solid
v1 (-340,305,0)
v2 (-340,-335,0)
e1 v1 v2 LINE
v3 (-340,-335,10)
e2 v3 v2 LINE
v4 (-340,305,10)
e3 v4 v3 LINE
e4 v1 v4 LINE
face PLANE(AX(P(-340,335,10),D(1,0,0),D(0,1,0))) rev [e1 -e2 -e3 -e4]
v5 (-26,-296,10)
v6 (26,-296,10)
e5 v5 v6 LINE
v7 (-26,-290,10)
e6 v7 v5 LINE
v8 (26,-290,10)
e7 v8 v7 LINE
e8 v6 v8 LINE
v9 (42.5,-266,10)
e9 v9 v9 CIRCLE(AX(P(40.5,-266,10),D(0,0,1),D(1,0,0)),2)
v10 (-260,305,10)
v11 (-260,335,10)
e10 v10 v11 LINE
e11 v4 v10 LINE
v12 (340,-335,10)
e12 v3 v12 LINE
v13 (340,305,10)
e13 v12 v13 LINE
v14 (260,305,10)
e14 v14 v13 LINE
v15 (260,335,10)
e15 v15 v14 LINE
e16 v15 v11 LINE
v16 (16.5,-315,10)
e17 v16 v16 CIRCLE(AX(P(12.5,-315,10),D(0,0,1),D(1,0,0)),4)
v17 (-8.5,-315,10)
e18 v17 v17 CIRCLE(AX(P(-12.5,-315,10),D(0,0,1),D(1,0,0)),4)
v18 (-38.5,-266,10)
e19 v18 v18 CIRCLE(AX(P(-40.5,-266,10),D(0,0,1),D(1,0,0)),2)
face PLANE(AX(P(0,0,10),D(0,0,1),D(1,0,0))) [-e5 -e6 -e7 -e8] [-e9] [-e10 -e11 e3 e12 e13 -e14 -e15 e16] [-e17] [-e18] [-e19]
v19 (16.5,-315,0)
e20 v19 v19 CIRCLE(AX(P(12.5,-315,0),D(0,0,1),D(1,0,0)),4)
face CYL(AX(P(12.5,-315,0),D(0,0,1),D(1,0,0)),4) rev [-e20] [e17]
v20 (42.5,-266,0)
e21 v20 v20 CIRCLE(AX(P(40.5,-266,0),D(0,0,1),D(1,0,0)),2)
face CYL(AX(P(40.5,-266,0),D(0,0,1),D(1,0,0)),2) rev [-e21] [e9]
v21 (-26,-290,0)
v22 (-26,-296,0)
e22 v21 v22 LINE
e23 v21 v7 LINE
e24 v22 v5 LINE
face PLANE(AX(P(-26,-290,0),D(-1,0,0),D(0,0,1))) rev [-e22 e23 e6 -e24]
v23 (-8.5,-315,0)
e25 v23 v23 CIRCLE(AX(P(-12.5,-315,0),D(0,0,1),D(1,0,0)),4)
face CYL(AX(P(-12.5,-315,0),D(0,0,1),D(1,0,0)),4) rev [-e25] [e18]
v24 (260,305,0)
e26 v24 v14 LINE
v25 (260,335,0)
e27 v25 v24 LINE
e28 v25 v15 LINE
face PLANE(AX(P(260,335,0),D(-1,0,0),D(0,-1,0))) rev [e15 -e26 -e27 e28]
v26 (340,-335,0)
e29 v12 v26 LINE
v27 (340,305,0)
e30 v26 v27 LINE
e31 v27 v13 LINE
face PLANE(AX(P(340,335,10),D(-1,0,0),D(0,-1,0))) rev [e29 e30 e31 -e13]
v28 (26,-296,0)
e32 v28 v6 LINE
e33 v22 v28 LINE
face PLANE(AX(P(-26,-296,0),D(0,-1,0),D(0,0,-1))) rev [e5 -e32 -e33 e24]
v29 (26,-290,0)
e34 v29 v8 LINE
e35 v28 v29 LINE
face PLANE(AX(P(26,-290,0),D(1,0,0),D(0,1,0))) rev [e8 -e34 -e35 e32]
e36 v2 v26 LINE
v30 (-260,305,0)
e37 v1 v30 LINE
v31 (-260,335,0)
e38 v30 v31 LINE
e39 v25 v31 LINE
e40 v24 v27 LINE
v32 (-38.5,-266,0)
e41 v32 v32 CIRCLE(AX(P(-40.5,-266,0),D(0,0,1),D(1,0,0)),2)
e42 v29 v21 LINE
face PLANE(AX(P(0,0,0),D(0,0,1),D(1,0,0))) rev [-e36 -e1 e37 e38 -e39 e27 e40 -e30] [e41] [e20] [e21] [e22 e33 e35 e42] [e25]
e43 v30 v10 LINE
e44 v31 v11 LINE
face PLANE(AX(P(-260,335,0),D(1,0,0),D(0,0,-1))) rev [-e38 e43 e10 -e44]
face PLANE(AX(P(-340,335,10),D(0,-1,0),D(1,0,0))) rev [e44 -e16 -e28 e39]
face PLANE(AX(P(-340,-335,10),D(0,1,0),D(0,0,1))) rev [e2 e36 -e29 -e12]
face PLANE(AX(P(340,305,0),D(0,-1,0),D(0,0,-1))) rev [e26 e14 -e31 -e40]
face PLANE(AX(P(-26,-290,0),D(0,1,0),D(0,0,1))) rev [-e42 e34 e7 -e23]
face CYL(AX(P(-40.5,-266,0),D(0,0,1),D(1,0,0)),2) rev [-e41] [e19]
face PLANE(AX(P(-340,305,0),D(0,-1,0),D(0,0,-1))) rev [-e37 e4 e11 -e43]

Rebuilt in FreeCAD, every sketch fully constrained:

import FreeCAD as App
import Part
import Sketcher
from FreeCAD import Vector
Q = App.Units.Quantity

doc = App.newDocument("Part")
body = doc.addObject("PartDesign::Body", "Body")

# Sketch on XY plane
sketch1 = doc.addObject("Sketcher::SketchObject", "Sketch")
body.addObject(sketch1)
sketch1.AttachmentSupport = (doc.XY_Plane, [""])
sketch1.MapMode = "FlatFace"
sketch1.addGeometry([
    Part.LineSegment(Vector(-340, 335, 0), Vector(-340, -335, 0)),
    Part.LineSegment(Vector(-340, -335, 0), Vector(340, -335, 0)),
    Part.LineSegment(Vector(340, -335, 0), Vector(340, 335, 0)),
    Part.LineSegment(Vector(340, 335, 0), Vector(-340, 335, 0)),
], False)
sketch1.addConstraint([
    Sketcher.Constraint("Coincident", 0, 2, 1, 1),
    Sketcher.Constraint("Coincident", 1, 2, 2, 1),
    Sketcher.Constraint("Coincident", 2, 2, 3, 1),
    Sketcher.Constraint("Coincident", 3, 2, 0, 1),
    Sketcher.Constraint("Vertical", 0),
    Sketcher.Constraint("Horizontal", 1),
    Sketcher.Constraint("Vertical", 2),
    Sketcher.Constraint("Horizontal", 3),
    Sketcher.Constraint("Symmetric", 0, 2, 2, 2, -1, 1),
    Sketcher.Constraint("DistanceX", 1, 1, 1, 2, Q("680 mm")),
    Sketcher.Constraint("DistanceY", 0, 2, 0, 1, Q("670 mm")),
])
pad1 = doc.addObject("PartDesign::Pad", "Pad")
body.addObject(pad1)
pad1.Profile = sketch1
pad1.Length = 10

# Sketch on XY plane
sketch2 = doc.addObject("Sketcher::SketchObject", "Sketch001")
body.addObject(sketch2)
sketch2.AttachmentSupport = (doc.XY_Plane, [""])
sketch2.MapMode = "FlatFace"
sketch2.AttachmentOffset = App.Placement(Vector(0, 0, 10), App.Rotation())
sketch2.addGeometry([
    Part.LineSegment(Vector(-340, 335, 0), Vector(-340, 305, 0)),  # 0
    Part.LineSegment(Vector(-340, 305, 0), Vector(-260, 305, 0)),  # 1
    Part.LineSegment(Vector(-260, 305, 0), Vector(-260, 335, 0)),  # 2
    Part.LineSegment(Vector(-260, 335, 0), Vector(-340, 335, 0)),  # 3
    Part.LineSegment(Vector(260, 335, 0), Vector(260, 305, 0)),  # 4
    Part.LineSegment(Vector(260, 305, 0), Vector(340, 305, 0)),  # 5
    Part.LineSegment(Vector(340, 305, 0), Vector(340, 335, 0)),  # 6
    Part.LineSegment(Vector(340, 335, 0), Vector(260, 335, 0)),  # 7
], False)
sketch2.addConstraint([
    Sketcher.Constraint("Coincident", 0, 2, 1, 1),
    Sketcher.Constraint("Coincident", 1, 2, 2, 1),
    Sketcher.Constraint("Coincident", 2, 2, 3, 1),
    Sketcher.Constraint("Coincident", 3, 2, 0, 1),
    Sketcher.Constraint("Coincident", 4, 2, 5, 1),
    Sketcher.Constraint("Coincident", 5, 2, 6, 1),
    Sketcher.Constraint("Coincident", 6, 2, 7, 1),
    Sketcher.Constraint("Coincident", 7, 2, 4, 1),
    Sketcher.Constraint("Vertical", 0),
    Sketcher.Constraint("Horizontal", 1),
    Sketcher.Constraint("Vertical", 2),
    Sketcher.Constraint("Horizontal", 3),
    Sketcher.Constraint("Vertical", 4),
    Sketcher.Constraint("Horizontal", 5),
    Sketcher.Constraint("Vertical", 6),
    Sketcher.Constraint("Horizontal", 7),
    Sketcher.Constraint("Symmetric", 1, 2, 4, 2, -2),
    Sketcher.Constraint("Symmetric", 3, 2, 6, 2, -2),
    Sketcher.Constraint("DistanceX", 1, 1, 1, 2, Q("80 mm")),
    Sketcher.Constraint("DistanceY", 0, 2, 0, 1, Q("30 mm")),
    Sketcher.Constraint("DistanceX", 0, 2, -1, 1, Q("340 mm")),
    Sketcher.Constraint("DistanceY", -1, 1, 0, 2, Q("305 mm")),
])
pocket1 = doc.addObject("PartDesign::Pocket", "Pocket")
body.addObject(pocket1)
pocket1.Profile = sketch2
pocket1.Type = "ThroughAll"

# Sketch on XY plane
sketch3 = doc.addObject("Sketcher::SketchObject", "Sketch002")
body.addObject(sketch3)
sketch3.AttachmentSupport = (doc.XY_Plane, [""])
sketch3.MapMode = "FlatFace"
sketch3.AttachmentOffset = App.Placement(Vector(0, 0, 10), App.Rotation())
sketch3.addGeometry([
    Part.LineSegment(Vector(-26, -290, 0), Vector(-26, -296, 0)),
    Part.LineSegment(Vector(-26, -296, 0), Vector(26, -296, 0)),
    Part.LineSegment(Vector(26, -296, 0), Vector(26, -290, 0)),
    Part.LineSegment(Vector(26, -290, 0), Vector(-26, -290, 0)),
], False)
sketch3.addConstraint([
    Sketcher.Constraint("Coincident", 0, 2, 1, 1),
    Sketcher.Constraint("Coincident", 1, 2, 2, 1),
    Sketcher.Constraint("Coincident", 2, 2, 3, 1),
    Sketcher.Constraint("Coincident", 3, 2, 0, 1),
    Sketcher.Constraint("Vertical", 0),
    Sketcher.Constraint("Horizontal", 1),
    Sketcher.Constraint("Vertical", 2),
    Sketcher.Constraint("Horizontal", 3),
    Sketcher.Constraint("DistanceX", 1, 1, 1, 2, Q("52 mm")),
    Sketcher.Constraint("DistanceY", 0, 2, 0, 1, Q("6 mm")),
    Sketcher.Constraint("DistanceX", 0, 2, -1, 1, Q("26 mm")),
    Sketcher.Constraint("DistanceY", 0, 2, -1, 1, Q("296 mm")),
])
pocket2 = doc.addObject("PartDesign::Pocket", "Pocket001")
body.addObject(pocket2)
pocket2.Profile = sketch3
pocket2.Type = "ThroughAll"

# Sketch on XY plane
sketch4 = doc.addObject("Sketcher::SketchObject", "Sketch003")
body.addObject(sketch4)
sketch4.AttachmentSupport = (doc.XY_Plane, [""])
sketch4.MapMode = "FlatFace"
sketch4.AttachmentOffset = App.Placement(Vector(0, 0, 10), App.Rotation())
sketch4.addGeometry([
    Part.Circle(Vector(-12.5, -315, 0), Vector(0, 0, 1), 4),
    Part.Circle(Vector(12.5, -315, 0), Vector(0, 0, 1), 4),
], False)
sketch4.addConstraint([
    Sketcher.Constraint("Equal", 0, 1),
    Sketcher.Constraint("Symmetric", 0, 3, 1, 3, -2),
    Sketcher.Constraint("Diameter", 0, Q("8 mm")),
    Sketcher.Constraint("DistanceY", 0, 3, -1, 1, Q("315 mm")),
    Sketcher.Constraint("DistanceX", 0, 3, 1, 3, Q("25 mm")),
])
pocket3 = doc.addObject("PartDesign::Pocket", "Pocket002")
body.addObject(pocket3)
pocket3.Profile = sketch4
pocket3.Type = "ThroughAll"

# Sketch on XY plane
sketch5 = doc.addObject("Sketcher::SketchObject", "Sketch004")
body.addObject(sketch5)
sketch5.AttachmentSupport = (doc.XY_Plane, [""])
sketch5.MapMode = "FlatFace"
sketch5.AttachmentOffset = App.Placement(Vector(0, 0, 10), App.Rotation())
sketch5.addGeometry([
    Part.Circle(Vector(-40.5, -266, 0), Vector(0, 0, 1), 2),
    Part.Circle(Vector(40.5, -266, 0), Vector(0, 0, 1), 2),
], False)
sketch5.addConstraint([
    Sketcher.Constraint("Equal", 0, 1),
    Sketcher.Constraint("Symmetric", 0, 3, 1, 3, -2),
    Sketcher.Constraint("Diameter", 0, Q("4 mm")),
    Sketcher.Constraint("DistanceY", 0, 3, -1, 1, Q("266 mm")),
    Sketcher.Constraint("DistanceX", 0, 3, 1, 3, Q("81 mm")),
])
pocket4 = doc.addObject("PartDesign::Pocket", "Pocket003")
body.addObject(pocket4)
pocket4.Profile = sketch5
pocket4.Type = "ThroughAll"

doc.recompute()
